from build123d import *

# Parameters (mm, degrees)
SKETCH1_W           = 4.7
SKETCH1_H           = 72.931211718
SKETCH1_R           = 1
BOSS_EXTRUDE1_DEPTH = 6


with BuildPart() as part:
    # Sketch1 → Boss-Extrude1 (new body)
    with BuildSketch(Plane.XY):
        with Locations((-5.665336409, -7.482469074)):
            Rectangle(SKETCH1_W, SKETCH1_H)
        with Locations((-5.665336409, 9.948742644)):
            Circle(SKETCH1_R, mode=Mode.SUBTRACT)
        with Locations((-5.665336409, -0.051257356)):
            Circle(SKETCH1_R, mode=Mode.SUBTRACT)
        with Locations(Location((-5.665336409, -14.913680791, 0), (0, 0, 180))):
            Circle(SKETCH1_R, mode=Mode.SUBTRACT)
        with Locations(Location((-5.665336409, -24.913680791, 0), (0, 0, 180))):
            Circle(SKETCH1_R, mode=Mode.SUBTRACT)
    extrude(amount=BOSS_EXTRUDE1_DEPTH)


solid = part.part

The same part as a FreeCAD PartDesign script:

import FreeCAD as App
import Part
import Sketcher


def add_polygon(sketch, points):
    """Adds a closed chain of lines whose ends are joined by coincident constraints."""
    first, n = sketch.GeometryCount, len(points)
    for a, b in zip(points, points[1:] + points[:1]):
        sketch.addGeometry(Part.LineSegment(App.Vector(*a, 0), App.Vector(*b, 0)), False)
    for i in range(n):
        sketch.addConstraint(Sketcher.Constraint("Coincident", first + i, 2, first + (i + 1) % n, 1))

doc = App.newDocument("Part")
body = doc.addObject("PartDesign::Body", "Body")

sketch1 = body.newObject("Sketcher::SketchObject", "Sketch")
sketch1.AttachmentSupport = (doc.getObject("XY_Plane"), [""])
sketch1.MapMode = "FlatFace"
add_polygon(sketch1, [(-8, 29), (-8, -43.9), (-3.3, -43.9), (-3.3, 29)])
sketch1.addGeometry(Part.Circle(App.Vector(-5.7, -24.9, 0), App.Vector(0, 0, 1), 1), False)
sketch1.addGeometry(Part.Circle(App.Vector(-5.7, -14.9, 0), App.Vector(0, 0, 1), 1), False)
sketch1.addGeometry(Part.Circle(App.Vector(-5.7, -0.1, 0), App.Vector(0, 0, 1), 1), False)
sketch1.addGeometry(Part.Circle(App.Vector(-5.7, 9.9, 0), App.Vector(0, 0, 1), 1), False)
sketch1.addConstraint([
    Sketcher.Constraint("Vertical", 0),
    Sketcher.Constraint("Horizontal", 1),
    Sketcher.Constraint("Vertical", 2),
    Sketcher.Constraint("Horizontal", 3),
    Sketcher.Constraint("Equal", 4, 5),
    Sketcher.Constraint("Equal", 5, 6),
    Sketcher.Constraint("Equal", 6, 7),
    Sketcher.Constraint("Vertical", 4, 3, 5, 3),
    Sketcher.Constraint("Vertical", 5, 3, 6, 3),
    Sketcher.Constraint("Vertical", 6, 3, 7, 3),
    Sketcher.Constraint("Diameter", 4, 2.0),
    Sketcher.Constraint("DistanceX", 1, 1, 1, 2, 4.7),
    Sketcher.Constraint("DistanceY", 4, 3, 5, 3, 10.0),
    Sketcher.Constraint("DistanceY", 6, 3, 7, 3, 10.0),
    Sketcher.Constraint("DistanceX", 0, 2, 4, 3, 2.35),
    Sketcher.Constraint("DistanceY", 0, 2, 0, 1, 72.931212),
    Sketcher.Constraint("DistanceY", 4, 3, -1, 1, 24.913681),
    Sketcher.Constraint("DistanceX", 4, 3, -1, 1, 5.665336),
    Sketcher.Constraint("DistanceY", 6, 3, -1, 1, 0.051257),
    Sketcher.Constraint("DistanceY", 0, 2, -1, 1, 43.948075),
])
pad1 = body.newObject("PartDesign::Pad", "Pad")
pad1.Profile = sketch1
pad1.Length = 6

doc.recompute()
